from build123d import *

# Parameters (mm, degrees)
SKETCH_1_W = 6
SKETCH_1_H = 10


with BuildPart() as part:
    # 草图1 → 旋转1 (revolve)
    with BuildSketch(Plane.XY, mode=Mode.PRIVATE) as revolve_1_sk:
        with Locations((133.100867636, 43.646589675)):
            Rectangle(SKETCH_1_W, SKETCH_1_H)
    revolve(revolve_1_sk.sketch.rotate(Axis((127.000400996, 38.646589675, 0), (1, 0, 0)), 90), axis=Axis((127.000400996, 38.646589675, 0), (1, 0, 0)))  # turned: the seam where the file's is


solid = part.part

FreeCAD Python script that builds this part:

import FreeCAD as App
import Part
import Sketcher
from FreeCAD import Vector


def add_polygon(sketch, points):
    """Adds a closed chain of lines whose ends are joined by coincident constraints."""
    first, n = sketch.GeometryCount, len(points)
    for a, b in zip(points, points[1:] + points[:1]):
        sketch.addGeometry(Part.LineSegment(App.Vector(*a, 0), App.Vector(*b, 0)), False)
    for i in range(n):
        sketch.addConstraint(Sketcher.Constraint("Coincident", first + i, 2, first + (i + 1) % n, 1))

doc = App.newDocument("Part")
body = doc.addObject("PartDesign::Body", "Body")

# Sketch on XY plane
sketch1 = body.newObject("Sketcher::SketchObject", "Sketch")
sketch1.AttachmentSupport = (doc.getObject("XY_Plane"), [""])
sketch1.MapMode = "FlatFace"
add_polygon(sketch1, [(130, 49), (130, 39), (136, 39), (136, 49)])  # lines 0-3
sketch1.addGeometry(Part.LineSegment(Vector(130, 39, 0), Vector(136, 39, 0)), True)  # axis
sketch1.addConstraint([
    Sketcher.Constraint("Vertical", 0),
    Sketcher.Constraint("Horizontal", 1),
    Sketcher.Constraint("Vertical", 2),
    Sketcher.Constraint("Horizontal", 3),
    Sketcher.Constraint("Horizontal", 4),
    Sketcher.Constraint("Coincident", 4, 1, 0, 2),
    Sketcher.Constraint("Vertical", 2, 2, 4, 2),
    Sketcher.Constraint("DistanceX", 1, 1, 1, 2, 6.0),
    Sketcher.Constraint("DistanceY", 0, 2, 0, 1, 10.0),
    Sketcher.Constraint("DistanceY", -1, 1, 0, 2, 38.64659),
    Sketcher.Constraint("DistanceX", -1, 1, 0, 2, 130.100868),
])
revolution = body.newObject("PartDesign::Revolution", "Revolution")
revolution.Profile = sketch1
revolution.ReferenceAxis = (sketch1, ["Axis0"])
revolution.Angle = 360

doc.recompute()
